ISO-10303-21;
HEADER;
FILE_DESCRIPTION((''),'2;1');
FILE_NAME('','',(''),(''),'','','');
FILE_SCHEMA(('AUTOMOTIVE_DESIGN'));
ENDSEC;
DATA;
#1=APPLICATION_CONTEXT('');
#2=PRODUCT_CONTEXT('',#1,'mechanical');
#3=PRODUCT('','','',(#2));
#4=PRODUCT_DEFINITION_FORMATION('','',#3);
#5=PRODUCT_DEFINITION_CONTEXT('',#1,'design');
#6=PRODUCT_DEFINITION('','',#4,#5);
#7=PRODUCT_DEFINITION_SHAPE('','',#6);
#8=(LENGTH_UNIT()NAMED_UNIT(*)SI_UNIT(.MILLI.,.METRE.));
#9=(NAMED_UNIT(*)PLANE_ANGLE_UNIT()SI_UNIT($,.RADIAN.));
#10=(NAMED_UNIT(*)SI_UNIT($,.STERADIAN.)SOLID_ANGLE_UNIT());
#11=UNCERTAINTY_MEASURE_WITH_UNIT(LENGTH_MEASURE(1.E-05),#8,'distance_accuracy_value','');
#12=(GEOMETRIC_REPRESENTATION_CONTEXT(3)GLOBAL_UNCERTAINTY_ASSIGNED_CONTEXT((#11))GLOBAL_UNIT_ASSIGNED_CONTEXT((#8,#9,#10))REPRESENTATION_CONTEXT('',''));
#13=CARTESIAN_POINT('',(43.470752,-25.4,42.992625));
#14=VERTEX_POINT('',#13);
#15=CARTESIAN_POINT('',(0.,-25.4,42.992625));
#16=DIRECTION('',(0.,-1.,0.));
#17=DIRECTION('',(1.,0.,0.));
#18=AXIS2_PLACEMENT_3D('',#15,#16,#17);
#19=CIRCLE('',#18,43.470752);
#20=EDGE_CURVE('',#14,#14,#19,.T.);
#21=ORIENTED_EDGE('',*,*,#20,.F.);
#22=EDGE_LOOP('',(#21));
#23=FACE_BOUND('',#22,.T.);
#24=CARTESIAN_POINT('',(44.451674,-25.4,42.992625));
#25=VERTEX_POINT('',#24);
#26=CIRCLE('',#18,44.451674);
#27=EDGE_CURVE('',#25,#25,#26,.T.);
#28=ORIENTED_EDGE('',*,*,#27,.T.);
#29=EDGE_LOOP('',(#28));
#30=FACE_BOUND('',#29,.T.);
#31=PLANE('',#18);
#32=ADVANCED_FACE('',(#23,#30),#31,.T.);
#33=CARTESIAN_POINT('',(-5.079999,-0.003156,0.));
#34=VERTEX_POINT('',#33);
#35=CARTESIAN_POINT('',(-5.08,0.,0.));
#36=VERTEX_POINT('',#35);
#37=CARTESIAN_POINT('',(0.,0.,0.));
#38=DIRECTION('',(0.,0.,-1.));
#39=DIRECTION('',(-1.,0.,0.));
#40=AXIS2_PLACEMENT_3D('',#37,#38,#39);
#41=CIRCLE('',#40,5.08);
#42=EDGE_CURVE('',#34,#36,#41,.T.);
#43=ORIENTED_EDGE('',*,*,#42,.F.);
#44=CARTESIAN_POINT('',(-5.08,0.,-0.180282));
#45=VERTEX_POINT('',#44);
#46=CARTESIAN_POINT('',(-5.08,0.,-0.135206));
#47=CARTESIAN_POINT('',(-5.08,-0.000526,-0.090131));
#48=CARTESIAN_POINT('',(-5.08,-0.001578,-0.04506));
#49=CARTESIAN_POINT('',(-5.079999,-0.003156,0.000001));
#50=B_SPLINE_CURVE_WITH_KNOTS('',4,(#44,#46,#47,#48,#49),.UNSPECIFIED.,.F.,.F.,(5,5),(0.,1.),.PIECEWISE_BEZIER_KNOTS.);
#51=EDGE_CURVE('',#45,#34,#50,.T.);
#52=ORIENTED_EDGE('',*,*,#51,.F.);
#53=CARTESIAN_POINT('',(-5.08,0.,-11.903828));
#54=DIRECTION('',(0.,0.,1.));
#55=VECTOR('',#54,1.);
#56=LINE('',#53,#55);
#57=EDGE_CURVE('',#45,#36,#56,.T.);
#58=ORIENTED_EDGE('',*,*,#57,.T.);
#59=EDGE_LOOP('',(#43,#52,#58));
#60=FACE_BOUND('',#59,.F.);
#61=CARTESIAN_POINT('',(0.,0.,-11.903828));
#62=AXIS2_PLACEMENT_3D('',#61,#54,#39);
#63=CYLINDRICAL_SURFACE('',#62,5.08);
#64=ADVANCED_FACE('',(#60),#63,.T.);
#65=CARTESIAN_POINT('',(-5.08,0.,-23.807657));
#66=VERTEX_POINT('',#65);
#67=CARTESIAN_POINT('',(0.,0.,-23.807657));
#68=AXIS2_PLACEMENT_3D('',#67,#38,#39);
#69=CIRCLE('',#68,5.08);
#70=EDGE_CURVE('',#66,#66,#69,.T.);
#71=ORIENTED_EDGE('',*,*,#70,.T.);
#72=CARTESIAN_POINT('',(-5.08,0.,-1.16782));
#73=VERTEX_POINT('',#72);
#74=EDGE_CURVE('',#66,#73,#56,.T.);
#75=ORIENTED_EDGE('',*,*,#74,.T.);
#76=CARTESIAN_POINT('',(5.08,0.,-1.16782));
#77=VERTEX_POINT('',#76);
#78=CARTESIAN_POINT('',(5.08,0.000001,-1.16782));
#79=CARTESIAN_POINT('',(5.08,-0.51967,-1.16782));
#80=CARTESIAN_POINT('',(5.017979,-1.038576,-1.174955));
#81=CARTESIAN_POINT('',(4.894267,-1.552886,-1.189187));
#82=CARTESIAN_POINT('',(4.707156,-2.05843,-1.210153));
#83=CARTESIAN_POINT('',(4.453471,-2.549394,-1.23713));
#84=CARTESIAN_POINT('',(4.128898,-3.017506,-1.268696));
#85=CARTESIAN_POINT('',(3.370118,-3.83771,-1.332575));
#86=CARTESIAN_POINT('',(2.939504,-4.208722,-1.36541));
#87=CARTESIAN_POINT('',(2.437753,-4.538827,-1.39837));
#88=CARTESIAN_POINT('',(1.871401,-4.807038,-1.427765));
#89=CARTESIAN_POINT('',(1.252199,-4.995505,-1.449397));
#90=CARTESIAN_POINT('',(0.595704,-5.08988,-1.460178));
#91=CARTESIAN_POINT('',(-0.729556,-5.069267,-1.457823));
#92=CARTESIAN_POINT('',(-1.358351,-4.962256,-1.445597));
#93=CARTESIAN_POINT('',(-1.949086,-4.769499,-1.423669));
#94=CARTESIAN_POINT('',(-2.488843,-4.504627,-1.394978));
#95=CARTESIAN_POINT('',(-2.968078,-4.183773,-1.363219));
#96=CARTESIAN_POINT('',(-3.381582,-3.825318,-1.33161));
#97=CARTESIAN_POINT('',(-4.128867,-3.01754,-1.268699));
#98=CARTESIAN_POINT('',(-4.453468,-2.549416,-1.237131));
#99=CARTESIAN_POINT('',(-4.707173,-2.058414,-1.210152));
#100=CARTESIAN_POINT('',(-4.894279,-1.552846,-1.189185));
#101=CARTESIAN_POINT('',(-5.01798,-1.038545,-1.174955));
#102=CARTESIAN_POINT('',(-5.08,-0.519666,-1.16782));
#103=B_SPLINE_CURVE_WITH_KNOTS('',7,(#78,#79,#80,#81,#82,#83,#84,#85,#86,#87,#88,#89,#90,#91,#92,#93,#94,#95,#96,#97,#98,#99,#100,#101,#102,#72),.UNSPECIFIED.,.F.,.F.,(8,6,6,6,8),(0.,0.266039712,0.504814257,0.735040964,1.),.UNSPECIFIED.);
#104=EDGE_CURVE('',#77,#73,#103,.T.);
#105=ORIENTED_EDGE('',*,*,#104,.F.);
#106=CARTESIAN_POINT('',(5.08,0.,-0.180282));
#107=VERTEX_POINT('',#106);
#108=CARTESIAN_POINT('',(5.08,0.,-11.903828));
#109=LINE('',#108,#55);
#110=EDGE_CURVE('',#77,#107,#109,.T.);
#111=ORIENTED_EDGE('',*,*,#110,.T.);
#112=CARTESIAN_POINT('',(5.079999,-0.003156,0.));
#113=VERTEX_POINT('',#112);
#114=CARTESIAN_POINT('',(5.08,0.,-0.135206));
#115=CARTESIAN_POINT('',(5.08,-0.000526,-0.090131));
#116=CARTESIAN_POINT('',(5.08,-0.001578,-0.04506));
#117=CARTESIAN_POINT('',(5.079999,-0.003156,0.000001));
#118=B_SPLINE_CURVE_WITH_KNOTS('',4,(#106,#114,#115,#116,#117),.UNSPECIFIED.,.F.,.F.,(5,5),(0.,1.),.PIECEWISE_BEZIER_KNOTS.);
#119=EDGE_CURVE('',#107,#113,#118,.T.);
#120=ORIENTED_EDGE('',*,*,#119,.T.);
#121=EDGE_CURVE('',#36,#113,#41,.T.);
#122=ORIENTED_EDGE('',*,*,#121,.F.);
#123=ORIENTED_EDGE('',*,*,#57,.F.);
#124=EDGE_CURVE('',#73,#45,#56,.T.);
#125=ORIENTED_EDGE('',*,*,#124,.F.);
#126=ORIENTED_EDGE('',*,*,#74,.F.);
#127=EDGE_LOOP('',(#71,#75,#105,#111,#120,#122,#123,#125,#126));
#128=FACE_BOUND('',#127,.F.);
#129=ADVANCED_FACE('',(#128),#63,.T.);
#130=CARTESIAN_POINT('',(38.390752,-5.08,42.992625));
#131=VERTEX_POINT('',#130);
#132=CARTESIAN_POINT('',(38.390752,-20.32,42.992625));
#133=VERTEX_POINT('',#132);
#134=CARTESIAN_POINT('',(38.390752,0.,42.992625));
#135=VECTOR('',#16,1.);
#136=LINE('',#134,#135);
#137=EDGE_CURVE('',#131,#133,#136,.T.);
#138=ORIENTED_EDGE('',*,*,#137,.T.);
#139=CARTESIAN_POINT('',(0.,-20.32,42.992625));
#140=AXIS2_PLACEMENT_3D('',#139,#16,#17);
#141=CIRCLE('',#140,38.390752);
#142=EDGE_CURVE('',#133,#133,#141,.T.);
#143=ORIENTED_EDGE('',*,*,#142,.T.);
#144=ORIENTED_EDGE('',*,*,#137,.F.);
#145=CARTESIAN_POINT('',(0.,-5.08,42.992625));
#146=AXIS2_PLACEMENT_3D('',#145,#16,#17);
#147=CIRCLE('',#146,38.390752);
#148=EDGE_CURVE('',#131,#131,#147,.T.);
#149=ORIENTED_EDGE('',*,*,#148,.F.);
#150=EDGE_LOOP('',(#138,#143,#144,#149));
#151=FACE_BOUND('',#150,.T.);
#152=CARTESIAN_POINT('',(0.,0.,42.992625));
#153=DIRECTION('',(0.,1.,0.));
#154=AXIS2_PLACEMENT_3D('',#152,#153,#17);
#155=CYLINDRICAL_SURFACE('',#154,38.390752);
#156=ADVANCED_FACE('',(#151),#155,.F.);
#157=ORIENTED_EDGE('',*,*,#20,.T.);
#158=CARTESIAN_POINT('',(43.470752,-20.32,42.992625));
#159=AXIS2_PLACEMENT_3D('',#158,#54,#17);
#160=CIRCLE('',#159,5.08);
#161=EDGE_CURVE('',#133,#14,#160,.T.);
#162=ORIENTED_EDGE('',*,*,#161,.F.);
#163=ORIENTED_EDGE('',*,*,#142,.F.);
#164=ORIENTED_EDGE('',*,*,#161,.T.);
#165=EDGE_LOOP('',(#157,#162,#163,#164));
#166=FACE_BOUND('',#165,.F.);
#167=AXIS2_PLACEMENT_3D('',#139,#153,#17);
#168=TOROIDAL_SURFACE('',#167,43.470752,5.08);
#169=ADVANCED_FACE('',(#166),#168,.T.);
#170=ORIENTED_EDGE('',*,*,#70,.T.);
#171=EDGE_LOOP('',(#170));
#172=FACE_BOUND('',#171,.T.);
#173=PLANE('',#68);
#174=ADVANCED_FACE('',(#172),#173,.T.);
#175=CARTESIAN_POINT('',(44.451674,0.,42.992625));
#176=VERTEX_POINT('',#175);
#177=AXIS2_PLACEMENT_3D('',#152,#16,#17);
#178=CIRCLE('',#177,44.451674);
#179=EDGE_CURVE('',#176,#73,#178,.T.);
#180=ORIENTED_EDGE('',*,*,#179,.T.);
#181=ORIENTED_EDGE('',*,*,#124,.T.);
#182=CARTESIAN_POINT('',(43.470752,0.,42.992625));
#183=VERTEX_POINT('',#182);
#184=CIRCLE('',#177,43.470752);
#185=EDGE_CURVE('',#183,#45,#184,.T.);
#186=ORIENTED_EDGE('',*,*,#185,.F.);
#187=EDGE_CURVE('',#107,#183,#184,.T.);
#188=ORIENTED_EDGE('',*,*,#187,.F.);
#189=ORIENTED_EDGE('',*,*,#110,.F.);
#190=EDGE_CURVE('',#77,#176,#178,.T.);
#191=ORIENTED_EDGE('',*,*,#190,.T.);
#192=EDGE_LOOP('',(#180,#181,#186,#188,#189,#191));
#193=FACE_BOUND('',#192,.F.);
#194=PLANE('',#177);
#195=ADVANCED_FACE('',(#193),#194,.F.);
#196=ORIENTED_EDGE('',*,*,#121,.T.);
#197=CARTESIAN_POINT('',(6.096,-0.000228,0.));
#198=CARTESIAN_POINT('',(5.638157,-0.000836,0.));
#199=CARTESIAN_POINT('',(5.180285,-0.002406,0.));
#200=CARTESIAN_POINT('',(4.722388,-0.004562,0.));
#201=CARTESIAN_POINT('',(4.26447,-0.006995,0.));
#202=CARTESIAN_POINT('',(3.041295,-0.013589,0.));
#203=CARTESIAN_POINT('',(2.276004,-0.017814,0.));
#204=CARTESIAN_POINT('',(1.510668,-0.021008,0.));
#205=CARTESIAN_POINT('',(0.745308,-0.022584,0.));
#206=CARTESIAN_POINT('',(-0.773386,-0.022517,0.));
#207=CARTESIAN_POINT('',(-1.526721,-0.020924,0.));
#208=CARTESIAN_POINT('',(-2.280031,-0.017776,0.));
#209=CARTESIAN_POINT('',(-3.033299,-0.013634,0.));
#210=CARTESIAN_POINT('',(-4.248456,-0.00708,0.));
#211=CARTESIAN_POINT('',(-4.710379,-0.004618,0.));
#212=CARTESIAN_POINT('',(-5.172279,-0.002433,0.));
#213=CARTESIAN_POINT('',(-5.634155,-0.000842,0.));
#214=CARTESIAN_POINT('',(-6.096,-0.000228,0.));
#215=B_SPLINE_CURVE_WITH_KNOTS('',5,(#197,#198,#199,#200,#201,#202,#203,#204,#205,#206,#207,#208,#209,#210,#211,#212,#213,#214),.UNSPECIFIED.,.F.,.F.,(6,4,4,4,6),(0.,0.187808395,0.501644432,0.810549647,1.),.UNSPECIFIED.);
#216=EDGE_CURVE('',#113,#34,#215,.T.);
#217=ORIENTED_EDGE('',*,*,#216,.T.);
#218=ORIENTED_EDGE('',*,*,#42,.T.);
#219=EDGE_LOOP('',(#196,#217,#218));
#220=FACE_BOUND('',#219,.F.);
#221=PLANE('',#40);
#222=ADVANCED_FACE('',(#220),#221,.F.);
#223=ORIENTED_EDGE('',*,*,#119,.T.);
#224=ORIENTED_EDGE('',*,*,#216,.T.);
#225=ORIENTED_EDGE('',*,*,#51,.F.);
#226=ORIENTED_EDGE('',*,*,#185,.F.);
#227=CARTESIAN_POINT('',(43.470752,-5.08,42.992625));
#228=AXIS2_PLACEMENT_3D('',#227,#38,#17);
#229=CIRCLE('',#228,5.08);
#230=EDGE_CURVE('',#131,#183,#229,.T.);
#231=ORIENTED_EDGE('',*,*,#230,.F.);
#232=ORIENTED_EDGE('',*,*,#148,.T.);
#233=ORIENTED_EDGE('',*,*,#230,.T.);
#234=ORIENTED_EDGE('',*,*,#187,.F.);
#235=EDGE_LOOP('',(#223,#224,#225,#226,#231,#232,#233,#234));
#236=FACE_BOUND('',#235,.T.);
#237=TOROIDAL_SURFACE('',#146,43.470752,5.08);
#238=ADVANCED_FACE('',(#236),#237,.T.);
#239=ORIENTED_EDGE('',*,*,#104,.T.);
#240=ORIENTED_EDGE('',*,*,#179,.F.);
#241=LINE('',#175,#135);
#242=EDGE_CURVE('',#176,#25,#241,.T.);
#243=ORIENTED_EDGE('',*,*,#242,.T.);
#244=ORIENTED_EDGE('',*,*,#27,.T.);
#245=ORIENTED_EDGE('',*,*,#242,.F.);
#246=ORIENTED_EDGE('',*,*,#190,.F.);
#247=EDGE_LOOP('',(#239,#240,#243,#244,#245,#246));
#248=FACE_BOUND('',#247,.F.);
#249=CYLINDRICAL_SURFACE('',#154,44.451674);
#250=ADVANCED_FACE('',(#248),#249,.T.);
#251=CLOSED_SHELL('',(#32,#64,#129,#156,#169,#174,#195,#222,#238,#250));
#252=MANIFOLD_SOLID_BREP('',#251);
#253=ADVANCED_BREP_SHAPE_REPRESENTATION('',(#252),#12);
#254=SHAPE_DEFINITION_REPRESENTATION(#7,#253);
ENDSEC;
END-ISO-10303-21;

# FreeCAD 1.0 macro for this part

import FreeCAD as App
import Part
import Sketcher
Q = App.Units.Quantity


def edges_at(feature, points):
    """Names of the edges that pass closest to the given points."""
    edges = feature.Shape.Edges
    near = lambda p: min(range(len(edges)), key=lambda i: edges[i].distToShape(Part.Vertex(*p))[0])
    return sorted({f"Edge{near(p) + 1}" for p in points})

doc = App.newDocument("Part")
body = doc.addObject("PartDesign::Body", "Body")

# Sketch on XZ plane
sketch1 = doc.addObject("Sketcher::SketchObject", "Sketch")
body.addObject(sketch1)
sketch1.AttachmentSupport = (doc.XZ_Plane, [""])
sketch1.MapMode = "FlatFace"
sketch1.addGeometry(Part.Circle(App.Vector(0, 43, 0), App.Vector(0, 0, 1), 44), False)
sketch1.addGeometry(Part.Circle(App.Vector(0, 43, 0), App.Vector(0, 0, 1), 38), False)
sketch1.addConstraint(Sketcher.Constraint("Coincident", 1, 3, 0, 3))
sketch1.addConstraint(Sketcher.Constraint("PointOnObject", 0, 3, -2))
sketch1.addConstraint(Sketcher.Constraint("Diameter", 0, 88.903348))
sketch1.addConstraint(Sketcher.Constraint("Diameter", 1, 76.781504))
sketch1.addConstraint(Sketcher.Constraint("DistanceY", -1, 1, 0, 3, 42.992625))
pad1 = doc.addObject("PartDesign::Pad", "Pad")
body.addObject(pad1)
pad1.Profile = sketch1
pad1.Length = Q("1 in")
doc.recompute()

fillet = doc.addObject("PartDesign::Fillet", "Fillet")
body.addObject(fillet)
fillet.Base = (pad1, edges_at(pad1, [(-38.391, -25.4, 42.993), (-38.391, 0, 42.993)]))
fillet.Radius = Q("0.2 in")

# Sketch on XZ plane
sketch2 = doc.addObject("Sketcher::SketchObject", "Sketch001")
body.addObject(sketch2)
sketch2.AttachmentSupport = (doc.XZ_Plane, [""])
sketch2.MapMode = "FlatFace"
sketch2.addGeometry(Part.LineSegment(App.Vector(-5, 0, 0), App.Vector(-5, -24, 0)), False)
sketch2.addGeometry(Part.LineSegment(App.Vector(-5, -24, 0), App.Vector(0, -24, 0)), False)
sketch2.addGeometry(Part.LineSegment(App.Vector(0, -24, 0), App.Vector(0, 0, 0)), False)
sketch2.addGeometry(Part.LineSegment(App.Vector(0, 0, 0), App.Vector(-5, 0, 0)), False)
sketch2.addConstraint(Sketcher.Constraint("Coincident", 0, 2, 1, 1))
sketch2.addConstraint(Sketcher.Constraint("Coincident", 1, 2, 2, 1))
sketch2.addConstraint(Sketcher.Constraint("Coincident", 2, 2, 3, 1))
sketch2.addConstraint(Sketcher.Constraint("Coincident", 3, 2, 0, 1))
sketch2.addConstraint(Sketcher.Constraint("Vertical", 0))
sketch2.addConstraint(Sketcher.Constraint("Horizontal", 1))
sketch2.addConstraint(Sketcher.Constraint("Vertical", 2))
sketch2.addConstraint(Sketcher.Constraint("Horizontal", 3))
sketch2.addConstraint(Sketcher.Constraint("Coincident", 2, 2, -1, 1))
sketch2.addConstraint(Sketcher.Constraint("DistanceX", 1, 1, 1, 2, Q("0.2 in")))
sketch2.addConstraint(Sketcher.Constraint("DistanceY", 0, 2, 0, 1, 23.807657))
revolution = doc.addObject("PartDesign::Revolution", "Revolution")
body.addObject(revolution)
revolution.Profile = sketch2
revolution.ReferenceAxis = (sketch2, ["V_Axis"])
revolution.Angle = 360

doc.recompute()
